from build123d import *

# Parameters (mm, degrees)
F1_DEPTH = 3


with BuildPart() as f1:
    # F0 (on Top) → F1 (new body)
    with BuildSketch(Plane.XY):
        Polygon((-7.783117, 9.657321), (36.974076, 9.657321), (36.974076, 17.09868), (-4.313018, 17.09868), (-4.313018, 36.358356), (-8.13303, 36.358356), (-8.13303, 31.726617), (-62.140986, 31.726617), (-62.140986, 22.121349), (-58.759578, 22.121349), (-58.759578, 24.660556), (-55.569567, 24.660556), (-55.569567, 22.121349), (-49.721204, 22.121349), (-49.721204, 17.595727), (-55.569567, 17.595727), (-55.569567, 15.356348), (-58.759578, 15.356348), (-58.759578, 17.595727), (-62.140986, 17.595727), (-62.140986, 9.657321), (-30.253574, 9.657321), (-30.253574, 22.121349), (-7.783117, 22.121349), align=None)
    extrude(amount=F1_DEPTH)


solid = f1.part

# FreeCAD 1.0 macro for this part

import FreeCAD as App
import Part
import Sketcher
from FreeCAD import Vector


def add_polygon(sketch, points):
    """Adds a closed chain of lines whose ends are joined by coincident constraints."""
    first, n = sketch.GeometryCount, len(points)
    for a, b in zip(points, points[1:] + points[:1]):
        sketch.addGeometry(Part.LineSegment(App.Vector(*a, 0), App.Vector(*b, 0)), False)
    for i in range(n):
        sketch.addConstraint(Sketcher.Constraint("Coincident", first + i, 2, first + (i + 1) % n, 1))

doc = App.newDocument("Part")
params = doc.addObject("Spreadsheet::Sheet", "Params")
for row, (alias, value) in enumerate([
    ("pad1_length", "3 mm"),
], start=1):
    params.set(f"A{row}", alias)
    params.set(f"B{row}", "=" + value)
    params.setAlias(f"B{row}", alias)

body = doc.addObject("PartDesign::Body", "Body")

# Sketch on XY plane
sketch1 = body.newObject("Sketcher::SketchObject", "Sketch")
sketch1.AttachmentSupport = (doc.getObject("XY_Plane"), [""])
sketch1.MapMode = "FlatFace"
add_polygon(sketch1, [(-7.8, 9.7), (37, 9.7), (37, 17.1), (-4.3, 17.1), (-4.3, 36.4), (-8.1, 36.4), (-8.1, 31.7), (-62.1, 31.7), (-62.1, 22.1), (-58.8, 22.1), (-58.8, 24.7), (-55.6, 24.7), (-55.6, 22.1), (-49.7, 22.1), (-49.7, 17.6), (-55.6, 17.6), (-55.6, 15.4), (-58.8, 15.4), (-58.8, 17.6), (-62.1, 17.6), (-62.1, 9.7), (-30.3, 9.7), (-30.3, 22.1), (-7.8, 22.1)])  # lines 0-23
sketch1.addConstraint([
    Sketcher.Constraint("Horizontal", 0),
    Sketcher.Constraint("Vertical", 1),
    Sketcher.Constraint("Horizontal", 2),
    Sketcher.Constraint("Vertical", 3),
    Sketcher.Constraint("Horizontal", 4),
    Sketcher.Constraint("Vertical", 5),
    Sketcher.Constraint("Horizontal", 6),
    Sketcher.Constraint("Vertical", 7),
    Sketcher.Constraint("Horizontal", 8),
    Sketcher.Constraint("Vertical", 9),
    Sketcher.Constraint("Horizontal", 10),
    Sketcher.Constraint("Vertical", 11),
    Sketcher.Constraint("Horizontal", 12),
    Sketcher.Constraint("Vertical", 13),
    Sketcher.Constraint("Horizontal", 14),
    Sketcher.Constraint("Vertical", 15),
    Sketcher.Constraint("Horizontal", 16),
    Sketcher.Constraint("Vertical", 17),
    Sketcher.Constraint("Horizontal", 18),
    Sketcher.Constraint("Vertical", 19),
    Sketcher.Constraint("Horizontal", 20),
    Sketcher.Constraint("Vertical", 21),
    Sketcher.Constraint("Horizontal", 22),
    Sketcher.Constraint("Vertical", 23),
    Sketcher.Constraint("Horizontal", 8, 2, 11, 2),
    Sketcher.Constraint("Horizontal", 14, 2, 17, 2),
    Sketcher.Constraint("Horizontal", 0, 2, 19, 2),
    Sketcher.Constraint("Horizontal", 12, 2, 21, 2),
    Sketcher.Constraint("Vertical", 11, 2, 14, 2),
    Sketcher.Constraint("Vertical", 9, 2, 16, 2),
    Sketcher.Constraint("Vertical", 7, 2, 18, 2),
    Sketcher.Constraint("DistanceY", 15, 2, 11, 2, 6.765001),
    Sketcher.Constraint("DistanceX", 8, 1, 8, 2, 3.381408),
    Sketcher.Constraint("DistanceX", 10, 1, 10, 2, 3.190011),
    Sketcher.Constraint("DistanceX", 20, 1, 20, 2, 31.887412),
    Sketcher.Constraint("DistanceY", 1, 1, 1, 2, 7.441359),
    Sketcher.Constraint("DistanceY", 5, 2, 5, 1, 4.631739),
    Sketcher.Constraint("DistanceY", 7, 2, 7, 1, 9.605268),
    Sketcher.Constraint("DistanceY", 13, 2, 13, 1, 4.525622),
    Sketcher.Constraint("DistanceY", 9, 2, 4, 2, 11.6978),
    Sketcher.Constraint("DistanceX", 22, 2, 2, 2, 3.470099),
    Sketcher.Constraint("DistanceX", 0, 1, 0, 2, 44.757193),
    Sketcher.Constraint("DistanceX", 4, 2, 4, 1, 3.820012),
    Sketcher.Constraint("DistanceX", 6, 2, 6, 1, 54.007956),
    Sketcher.Constraint("DistanceX", 12, 1, 12, 2, 5.848363),
    Sketcher.Constraint("DistanceY", 3, 1, 3, 2, 19.259676),
    Sketcher.Constraint("DistanceY", -1, 1, 0, 2, 9.657321),
    Sketcher.Constraint("DistanceX", 4, 2, -1, 1, 8.13303),
])
pad1 = body.newObject("PartDesign::Pad", "Pad")
pad1.Profile = sketch1
pad1.setExpression("Length", "Params.pad1_length")

doc.recompute()
